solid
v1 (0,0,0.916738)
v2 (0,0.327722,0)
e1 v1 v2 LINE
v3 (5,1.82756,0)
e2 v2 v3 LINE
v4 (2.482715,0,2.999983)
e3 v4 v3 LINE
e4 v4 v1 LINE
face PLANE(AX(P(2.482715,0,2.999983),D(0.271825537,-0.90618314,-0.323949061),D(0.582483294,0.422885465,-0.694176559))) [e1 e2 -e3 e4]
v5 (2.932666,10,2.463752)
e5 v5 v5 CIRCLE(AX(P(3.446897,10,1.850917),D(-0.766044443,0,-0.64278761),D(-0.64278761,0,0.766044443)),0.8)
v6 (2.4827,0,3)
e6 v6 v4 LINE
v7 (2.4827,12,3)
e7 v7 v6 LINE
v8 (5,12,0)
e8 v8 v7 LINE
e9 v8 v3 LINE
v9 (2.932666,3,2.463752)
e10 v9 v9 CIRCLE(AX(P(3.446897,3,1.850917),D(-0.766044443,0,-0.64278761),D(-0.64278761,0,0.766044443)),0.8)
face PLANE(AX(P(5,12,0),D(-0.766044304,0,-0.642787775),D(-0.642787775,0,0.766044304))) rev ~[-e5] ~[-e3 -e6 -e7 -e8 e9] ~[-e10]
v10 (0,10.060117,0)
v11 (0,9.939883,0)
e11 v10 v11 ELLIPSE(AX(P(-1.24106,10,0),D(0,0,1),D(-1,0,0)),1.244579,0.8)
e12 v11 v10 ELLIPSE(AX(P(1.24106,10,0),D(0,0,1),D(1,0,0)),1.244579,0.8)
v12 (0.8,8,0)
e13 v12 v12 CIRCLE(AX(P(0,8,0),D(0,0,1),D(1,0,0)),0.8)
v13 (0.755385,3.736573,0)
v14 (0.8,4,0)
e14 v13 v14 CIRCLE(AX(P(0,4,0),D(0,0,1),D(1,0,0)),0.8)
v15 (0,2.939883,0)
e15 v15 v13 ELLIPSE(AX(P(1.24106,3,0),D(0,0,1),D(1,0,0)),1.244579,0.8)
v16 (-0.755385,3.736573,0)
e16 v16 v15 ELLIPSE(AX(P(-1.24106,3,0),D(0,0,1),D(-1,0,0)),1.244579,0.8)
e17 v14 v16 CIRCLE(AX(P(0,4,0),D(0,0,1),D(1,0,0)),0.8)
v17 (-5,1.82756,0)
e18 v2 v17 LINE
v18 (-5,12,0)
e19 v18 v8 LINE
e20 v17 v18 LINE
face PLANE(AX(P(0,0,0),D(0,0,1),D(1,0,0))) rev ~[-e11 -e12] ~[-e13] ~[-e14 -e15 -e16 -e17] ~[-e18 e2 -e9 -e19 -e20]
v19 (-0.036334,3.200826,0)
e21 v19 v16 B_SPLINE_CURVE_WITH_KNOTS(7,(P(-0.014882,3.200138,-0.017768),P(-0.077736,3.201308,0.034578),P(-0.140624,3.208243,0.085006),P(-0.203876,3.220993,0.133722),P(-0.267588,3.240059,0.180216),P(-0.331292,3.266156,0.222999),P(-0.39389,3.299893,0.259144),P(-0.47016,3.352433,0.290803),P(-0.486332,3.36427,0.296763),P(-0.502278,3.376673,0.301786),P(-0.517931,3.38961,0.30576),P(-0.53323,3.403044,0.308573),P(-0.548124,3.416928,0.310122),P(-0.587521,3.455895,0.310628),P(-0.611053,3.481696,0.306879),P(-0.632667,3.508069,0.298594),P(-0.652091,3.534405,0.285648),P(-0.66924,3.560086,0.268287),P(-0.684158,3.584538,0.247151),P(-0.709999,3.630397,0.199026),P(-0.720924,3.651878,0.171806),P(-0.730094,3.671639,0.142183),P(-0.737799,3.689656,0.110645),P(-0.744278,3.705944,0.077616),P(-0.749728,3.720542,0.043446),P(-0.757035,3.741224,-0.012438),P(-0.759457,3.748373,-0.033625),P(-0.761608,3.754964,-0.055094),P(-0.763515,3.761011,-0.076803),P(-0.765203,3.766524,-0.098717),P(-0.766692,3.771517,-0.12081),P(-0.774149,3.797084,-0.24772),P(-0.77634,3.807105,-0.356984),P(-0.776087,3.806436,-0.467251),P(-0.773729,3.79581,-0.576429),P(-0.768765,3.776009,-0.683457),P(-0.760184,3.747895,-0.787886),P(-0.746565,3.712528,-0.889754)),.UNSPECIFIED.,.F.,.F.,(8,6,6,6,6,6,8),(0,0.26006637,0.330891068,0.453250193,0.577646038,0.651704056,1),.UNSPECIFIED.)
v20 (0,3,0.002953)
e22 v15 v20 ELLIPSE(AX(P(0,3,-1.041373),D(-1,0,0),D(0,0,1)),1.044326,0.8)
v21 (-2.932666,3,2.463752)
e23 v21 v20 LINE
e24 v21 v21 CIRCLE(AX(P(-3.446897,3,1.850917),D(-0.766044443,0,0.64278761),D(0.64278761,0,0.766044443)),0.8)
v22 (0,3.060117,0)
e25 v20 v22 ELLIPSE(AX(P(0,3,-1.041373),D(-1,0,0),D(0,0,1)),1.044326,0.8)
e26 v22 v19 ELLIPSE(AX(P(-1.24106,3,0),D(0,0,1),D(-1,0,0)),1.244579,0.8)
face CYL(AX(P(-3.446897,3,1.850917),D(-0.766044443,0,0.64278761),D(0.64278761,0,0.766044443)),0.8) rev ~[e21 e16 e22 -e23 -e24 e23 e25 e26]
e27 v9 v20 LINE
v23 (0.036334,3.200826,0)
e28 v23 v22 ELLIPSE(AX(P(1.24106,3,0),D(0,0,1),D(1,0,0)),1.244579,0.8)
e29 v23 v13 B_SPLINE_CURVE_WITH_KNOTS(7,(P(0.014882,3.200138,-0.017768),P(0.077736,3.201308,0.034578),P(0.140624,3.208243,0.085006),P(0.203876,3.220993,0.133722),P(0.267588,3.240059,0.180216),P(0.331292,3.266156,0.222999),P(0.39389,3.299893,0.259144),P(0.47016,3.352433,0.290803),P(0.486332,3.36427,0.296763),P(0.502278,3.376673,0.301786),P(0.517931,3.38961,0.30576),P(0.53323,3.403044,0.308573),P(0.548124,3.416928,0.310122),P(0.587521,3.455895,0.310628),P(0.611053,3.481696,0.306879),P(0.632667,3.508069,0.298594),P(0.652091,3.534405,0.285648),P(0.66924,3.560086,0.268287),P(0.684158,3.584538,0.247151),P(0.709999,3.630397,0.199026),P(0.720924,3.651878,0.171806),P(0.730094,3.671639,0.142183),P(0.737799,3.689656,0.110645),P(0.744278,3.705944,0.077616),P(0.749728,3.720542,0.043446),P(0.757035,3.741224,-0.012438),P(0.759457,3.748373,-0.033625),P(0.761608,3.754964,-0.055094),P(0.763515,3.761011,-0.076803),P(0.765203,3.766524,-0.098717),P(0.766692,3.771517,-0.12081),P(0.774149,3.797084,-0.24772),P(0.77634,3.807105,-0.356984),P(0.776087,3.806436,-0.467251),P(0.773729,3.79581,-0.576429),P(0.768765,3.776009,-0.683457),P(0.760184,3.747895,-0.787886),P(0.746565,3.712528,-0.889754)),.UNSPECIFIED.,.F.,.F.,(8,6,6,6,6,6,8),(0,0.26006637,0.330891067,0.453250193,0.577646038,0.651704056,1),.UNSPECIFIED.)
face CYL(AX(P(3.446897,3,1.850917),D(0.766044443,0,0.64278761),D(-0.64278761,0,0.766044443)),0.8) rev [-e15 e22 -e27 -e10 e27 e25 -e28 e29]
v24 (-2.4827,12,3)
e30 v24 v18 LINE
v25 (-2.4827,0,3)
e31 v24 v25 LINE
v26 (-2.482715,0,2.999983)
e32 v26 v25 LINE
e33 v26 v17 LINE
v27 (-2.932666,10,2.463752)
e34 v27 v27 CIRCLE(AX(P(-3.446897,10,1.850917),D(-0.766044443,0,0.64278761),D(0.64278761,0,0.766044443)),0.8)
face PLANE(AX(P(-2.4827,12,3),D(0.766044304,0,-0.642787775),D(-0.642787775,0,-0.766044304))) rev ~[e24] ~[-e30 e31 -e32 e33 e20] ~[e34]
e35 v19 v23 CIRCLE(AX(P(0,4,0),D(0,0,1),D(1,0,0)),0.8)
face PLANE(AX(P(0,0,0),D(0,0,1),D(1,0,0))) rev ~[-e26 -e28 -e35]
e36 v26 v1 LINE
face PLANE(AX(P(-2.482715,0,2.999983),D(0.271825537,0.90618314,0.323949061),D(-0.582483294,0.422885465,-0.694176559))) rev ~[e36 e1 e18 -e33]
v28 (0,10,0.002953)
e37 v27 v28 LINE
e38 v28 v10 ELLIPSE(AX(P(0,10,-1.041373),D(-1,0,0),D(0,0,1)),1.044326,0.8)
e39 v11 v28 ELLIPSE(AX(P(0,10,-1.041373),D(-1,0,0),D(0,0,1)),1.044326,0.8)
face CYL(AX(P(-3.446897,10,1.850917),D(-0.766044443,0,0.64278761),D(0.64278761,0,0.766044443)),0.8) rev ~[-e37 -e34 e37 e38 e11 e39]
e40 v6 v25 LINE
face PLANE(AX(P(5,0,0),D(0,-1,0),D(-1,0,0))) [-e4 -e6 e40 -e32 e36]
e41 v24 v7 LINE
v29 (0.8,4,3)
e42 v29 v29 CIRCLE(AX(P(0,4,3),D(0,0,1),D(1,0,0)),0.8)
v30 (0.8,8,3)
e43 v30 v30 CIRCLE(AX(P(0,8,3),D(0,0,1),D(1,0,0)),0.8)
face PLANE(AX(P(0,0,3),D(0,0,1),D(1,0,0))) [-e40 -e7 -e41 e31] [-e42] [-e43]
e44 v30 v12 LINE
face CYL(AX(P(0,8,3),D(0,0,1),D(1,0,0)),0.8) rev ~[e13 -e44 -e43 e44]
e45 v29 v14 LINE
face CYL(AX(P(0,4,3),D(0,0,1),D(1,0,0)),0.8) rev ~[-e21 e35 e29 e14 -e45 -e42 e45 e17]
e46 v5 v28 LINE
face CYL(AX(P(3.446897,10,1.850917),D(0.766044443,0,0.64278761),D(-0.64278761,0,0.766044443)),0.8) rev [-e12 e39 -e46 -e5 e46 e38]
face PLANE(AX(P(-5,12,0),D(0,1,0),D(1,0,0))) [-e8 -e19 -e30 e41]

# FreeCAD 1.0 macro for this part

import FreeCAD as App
import Part
import Sketcher
from FreeCAD import Vector
Q = App.Units.Quantity

doc = App.newDocument("Part")
body = doc.addObject("PartDesign::Body", "Body")

# Sketch on XY plane
sketch1 = body.newObject("Sketcher::SketchObject", "Sketch")
sketch1.AttachmentSupport = (doc.getObject("XY_Plane"), [""])
sketch1.MapMode = "FlatFace"
sketch1.addGeometry(Part.LineSegment(Vector(5, 12, 0), Vector(-5, 12, 0)), False)
sketch1.addGeometry(Part.LineSegment(Vector(-5, 12, 0), Vector(-5, 0, 0)), False)
sketch1.addGeometry(Part.LineSegment(Vector(-5, 0, 0), Vector(5, 0, 0)), False)
sketch1.addGeometry(Part.LineSegment(Vector(5, 0, 0), Vector(5, 12, 0)), False)
sketch1.addConstraint(Sketcher.Constraint("Coincident", 0, 2, 1, 1))
sketch1.addConstraint(Sketcher.Constraint("Coincident", 1, 2, 2, 1))
sketch1.addConstraint(Sketcher.Constraint("Coincident", 2, 2, 3, 1))
sketch1.addConstraint(Sketcher.Constraint("Coincident", 3, 2, 0, 1))
sketch1.addConstraint(Sketcher.Constraint("Horizontal", 0))
sketch1.addConstraint(Sketcher.Constraint("Vertical", 1))
sketch1.addConstraint(Sketcher.Constraint("Horizontal", 2))
sketch1.addConstraint(Sketcher.Constraint("Vertical", 3))
sketch1.addConstraint(Sketcher.Constraint("Symmetric", 1, 2, 2, 2, -1, 1))
sketch1.addConstraint(Sketcher.Constraint("DistanceX", 0, 2, 0, 1, 10.0))
sketch1.addConstraint(Sketcher.Constraint("DistanceY", 1, 2, 1, 1, 12.0))
pad1 = body.newObject("PartDesign::Pad", "Pad")
pad1.Profile = sketch1
pad1.Length = 3

# Sketch on XZ plane
sketch2 = body.newObject("Sketcher::SketchObject", "Sketch001")
sketch2.AttachmentSupport = (doc.getObject("XZ_Plane"), [""])
sketch2.MapMode = "FlatFace"
sketch2.AttachmentOffset = App.Placement(Vector(0, 0, -12), App.Rotation())
sketch2.addGeometry(Part.LineSegment(Vector(-5, 0, 0), Vector(-5, 3, 0)), False)
sketch2.addGeometry(Part.LineSegment(Vector(-5, 3, 0), Vector(-2.4827, 3, 0)), False)
sketch2.addGeometry(Part.LineSegment(Vector(-2.4827, 3, 0), Vector(-5, 0, 0)), False)
sketch2.addGeometry(Part.LineSegment(Vector(5, 0, 0), Vector(2.4827, 3, 0)), False)
sketch2.addGeometry(Part.LineSegment(Vector(2.4827, 3, 0), Vector(5, 3, 0)), False)
sketch2.addGeometry(Part.LineSegment(Vector(5, 3, 0), Vector(5, 0, 0)), False)
sketch2.addConstraint(Sketcher.Constraint("Coincident", 0, 2, 1, 1))
sketch2.addConstraint(Sketcher.Constraint("Coincident", 1, 2, 2, 1))
sketch2.addConstraint(Sketcher.Constraint("Coincident", 2, 2, 0, 1))
sketch2.addConstraint(Sketcher.Constraint("Coincident", 3, 2, 4, 1))
sketch2.addConstraint(Sketcher.Constraint("Coincident", 4, 2, 5, 1))
sketch2.addConstraint(Sketcher.Constraint("Coincident", 5, 2, 3, 1))
sketch2.addConstraint(Sketcher.Constraint("Vertical", 0))
sketch2.addConstraint(Sketcher.Constraint("Horizontal", 1))
sketch2.addConstraint(Sketcher.Constraint("Horizontal", 4))
sketch2.addConstraint(Sketcher.Constraint("Vertical", 5))
sketch2.addConstraint(Sketcher.Constraint("Symmetric", 2, 2, 5, 2, -1, 1))
sketch2.addConstraint(Sketcher.Constraint("Symmetric", 1, 2, 3, 2, -2))
sketch2.addConstraint(Sketcher.Constraint("PointOnObject", 2, 2, -1))
sketch2.addConstraint(Sketcher.Constraint("DistanceY", 0, 1, 0, 2, 3.0))
sketch2.addConstraint(Sketcher.Constraint("Angle", 2, Q("-130 deg")))
sketch2.addConstraint(Sketcher.Constraint("DistanceX", 0, 2, -1, 1, 5.0))
pocket1 = body.newObject("PartDesign::Pocket", "Pocket")
pocket1.Profile = sketch2
pocket1.Type = "ThroughAll"
pocket1.Reversed = True

# Sketch on an angled plane
sketch3 = body.newObject("Sketcher::SketchObject", "Sketch002")
sketch3.Placement = App.Placement(Vector(-5, 0, 0), App.Rotation(Vector(0.64278761, 0, 0.766044443), Vector(0, 1, 0), Vector(-0.766044443, 0, 0.64278761), "ZXY"))
sketch3.addGeometry(Part.LineSegment(Vector(0, 0, 0), Vector(3.9162, 0, 0)), False)
sketch3.addGeometry(Part.LineSegment(Vector(3.9162, 0, 0), Vector(0, 1.82756, 0)), False)
sketch3.addGeometry(Part.LineSegment(Vector(0, 1.82756, 0), Vector(0, 0, 0)), False)
sketch3.addConstraint(Sketcher.Constraint("Coincident", 0, 2, 1, 1))
sketch3.addConstraint(Sketcher.Constraint("Coincident", 1, 2, 2, 1))
sketch3.addConstraint(Sketcher.Constraint("Coincident", 2, 2, 0, 1))
sketch3.addConstraint(Sketcher.Constraint("Horizontal", 0))
sketch3.addConstraint(Sketcher.Constraint("Vertical", 2))
sketch3.addConstraint(Sketcher.Constraint("Coincident", 2, 2, -1, 1))
sketch3.addConstraint(Sketcher.Constraint("DistanceX", 0, 1, 0, 2, 3.9162))
sketch3.addConstraint(Sketcher.Constraint("DistanceY", 2, 2, 2, 1, 1.8276))
pocket2 = body.newObject("PartDesign::Pocket", "Pocket001")
pocket2.Profile = sketch3
pocket2.Type = "ThroughAll"

# Sketch on an angled plane
sketch4 = body.newObject("Sketcher::SketchObject", "Sketch003")
sketch4.Placement = App.Placement(Vector(5, 0, 0), App.Rotation(Vector(0.64278761, 0, -0.766044443), Vector(0, 1, 0), Vector(0.766044443, 0, 0.64278761), "ZXY"))
sketch4.addGeometry(Part.LineSegment(Vector(-3.9162, 0, 0), Vector(0, 0, 0)), False)
sketch4.addGeometry(Part.LineSegment(Vector(0, 0, 0), Vector(0, 1.82756, 0)), False)
sketch4.addGeometry(Part.LineSegment(Vector(0, 1.82756, 0), Vector(-3.9162, 0, 0)), False)
sketch4.addConstraint(Sketcher.Constraint("Coincident", 0, 2, 1, 1))
sketch4.addConstraint(Sketcher.Constraint("Coincident", 1, 2, 2, 1))
sketch4.addConstraint(Sketcher.Constraint("Coincident", 2, 2, 0, 1))
sketch4.addConstraint(Sketcher.Constraint("Horizontal", 0))
sketch4.addConstraint(Sketcher.Constraint("Vertical", 1))
sketch4.addConstraint(Sketcher.Constraint("Coincident", 0, 2, -1, 1))
sketch4.addConstraint(Sketcher.Constraint("DistanceX", 0, 1, 0, 2, 3.9162))
sketch4.addConstraint(Sketcher.Constraint("DistanceY", 1, 1, 1, 2, 1.8276))
pocket3 = body.newObject("PartDesign::Pocket", "Pocket002")
pocket3.Profile = sketch4
pocket3.Type = "ThroughAll"

# Sketch on an angled plane
sketch5 = body.newObject("Sketcher::SketchObject", "Sketch004")
sketch5.Placement = App.Placement(Vector(-5, 1.8276, 0), App.Rotation(Vector(0.64278761, 0, 0.766044443), Vector(0, 1, 0), Vector(-0.766044443, 0, 0.64278761), "ZXY"))
sketch5.addGeometry(Part.Circle(Vector(2.4162, 8.1724, 0), Vector(0, 0, 1), 0.8), False)
sketch5.addGeometry(Part.Circle(Vector(2.4162, 1.1724, 0), Vector(0, 0, 1), 0.8), False)
sketch5.addConstraint(Sketcher.Constraint("Equal", 0, 1))
sketch5.addConstraint(Sketcher.Constraint("Vertical", 0, 3, 1, 3))
sketch5.addConstraint(Sketcher.Constraint("Diameter", 0, 1.6))
sketch5.addConstraint(Sketcher.Constraint("DistanceY", 1, 3, 0, 3, 7.0))
sketch5.addConstraint(Sketcher.Constraint("DistanceX", -1, 1, 0, 3, 2.4162))
sketch5.addConstraint(Sketcher.Constraint("DistanceY", -1, 1, 0, 3, 8.1724))
pocket4 = body.newObject("PartDesign::Pocket", "Pocket003")
pocket4.Profile = sketch5
pocket4.Type = "ThroughAll"
doc.recompute()

mirrored = body.newObject("PartDesign::Mirrored", "Mirrored")
mirrored.Originals = [pocket4]
mirrored.MirrorPlane = (doc.getObject("YZ_Plane"), [""])
body.Tip = mirrored

# Sketch on XY plane
sketch6 = body.newObject("Sketcher::SketchObject", "Sketch005")
sketch6.AttachmentSupport = (doc.getObject("XY_Plane"), [""])
sketch6.MapMode = "FlatFace"
sketch6.AttachmentOffset = App.Placement(Vector(0, 0, 3), App.Rotation())
sketch6.addGeometry(Part.Circle(Vector(0, 4, 0), Vector(0, 0, 1), 0.8), False)
sketch6.addGeometry(Part.Circle(Vector(0, 8, 0), Vector(0, 0, 1), 0.8), False)
sketch6.addConstraint(Sketcher.Constraint("Equal", 0, 1))
sketch6.addConstraint(Sketcher.Constraint("PointOnObject", 0, 3, -2))
sketch6.addConstraint(Sketcher.Constraint("PointOnObject", 1, 3, -2))
sketch6.addConstraint(Sketcher.Constraint("Diameter", 0, 1.6))
sketch6.addConstraint(Sketcher.Constraint("DistanceY", -1, 1, 0, 3, 4.0))
sketch6.addConstraint(Sketcher.Constraint("DistanceY", 0, 3, 1, 3, 4.0))
pocket5 = body.newObject("PartDesign::Pocket", "Pocket004")
pocket5.Profile = sketch6
pocket5.Type = "ThroughAll"

doc.recompute()
